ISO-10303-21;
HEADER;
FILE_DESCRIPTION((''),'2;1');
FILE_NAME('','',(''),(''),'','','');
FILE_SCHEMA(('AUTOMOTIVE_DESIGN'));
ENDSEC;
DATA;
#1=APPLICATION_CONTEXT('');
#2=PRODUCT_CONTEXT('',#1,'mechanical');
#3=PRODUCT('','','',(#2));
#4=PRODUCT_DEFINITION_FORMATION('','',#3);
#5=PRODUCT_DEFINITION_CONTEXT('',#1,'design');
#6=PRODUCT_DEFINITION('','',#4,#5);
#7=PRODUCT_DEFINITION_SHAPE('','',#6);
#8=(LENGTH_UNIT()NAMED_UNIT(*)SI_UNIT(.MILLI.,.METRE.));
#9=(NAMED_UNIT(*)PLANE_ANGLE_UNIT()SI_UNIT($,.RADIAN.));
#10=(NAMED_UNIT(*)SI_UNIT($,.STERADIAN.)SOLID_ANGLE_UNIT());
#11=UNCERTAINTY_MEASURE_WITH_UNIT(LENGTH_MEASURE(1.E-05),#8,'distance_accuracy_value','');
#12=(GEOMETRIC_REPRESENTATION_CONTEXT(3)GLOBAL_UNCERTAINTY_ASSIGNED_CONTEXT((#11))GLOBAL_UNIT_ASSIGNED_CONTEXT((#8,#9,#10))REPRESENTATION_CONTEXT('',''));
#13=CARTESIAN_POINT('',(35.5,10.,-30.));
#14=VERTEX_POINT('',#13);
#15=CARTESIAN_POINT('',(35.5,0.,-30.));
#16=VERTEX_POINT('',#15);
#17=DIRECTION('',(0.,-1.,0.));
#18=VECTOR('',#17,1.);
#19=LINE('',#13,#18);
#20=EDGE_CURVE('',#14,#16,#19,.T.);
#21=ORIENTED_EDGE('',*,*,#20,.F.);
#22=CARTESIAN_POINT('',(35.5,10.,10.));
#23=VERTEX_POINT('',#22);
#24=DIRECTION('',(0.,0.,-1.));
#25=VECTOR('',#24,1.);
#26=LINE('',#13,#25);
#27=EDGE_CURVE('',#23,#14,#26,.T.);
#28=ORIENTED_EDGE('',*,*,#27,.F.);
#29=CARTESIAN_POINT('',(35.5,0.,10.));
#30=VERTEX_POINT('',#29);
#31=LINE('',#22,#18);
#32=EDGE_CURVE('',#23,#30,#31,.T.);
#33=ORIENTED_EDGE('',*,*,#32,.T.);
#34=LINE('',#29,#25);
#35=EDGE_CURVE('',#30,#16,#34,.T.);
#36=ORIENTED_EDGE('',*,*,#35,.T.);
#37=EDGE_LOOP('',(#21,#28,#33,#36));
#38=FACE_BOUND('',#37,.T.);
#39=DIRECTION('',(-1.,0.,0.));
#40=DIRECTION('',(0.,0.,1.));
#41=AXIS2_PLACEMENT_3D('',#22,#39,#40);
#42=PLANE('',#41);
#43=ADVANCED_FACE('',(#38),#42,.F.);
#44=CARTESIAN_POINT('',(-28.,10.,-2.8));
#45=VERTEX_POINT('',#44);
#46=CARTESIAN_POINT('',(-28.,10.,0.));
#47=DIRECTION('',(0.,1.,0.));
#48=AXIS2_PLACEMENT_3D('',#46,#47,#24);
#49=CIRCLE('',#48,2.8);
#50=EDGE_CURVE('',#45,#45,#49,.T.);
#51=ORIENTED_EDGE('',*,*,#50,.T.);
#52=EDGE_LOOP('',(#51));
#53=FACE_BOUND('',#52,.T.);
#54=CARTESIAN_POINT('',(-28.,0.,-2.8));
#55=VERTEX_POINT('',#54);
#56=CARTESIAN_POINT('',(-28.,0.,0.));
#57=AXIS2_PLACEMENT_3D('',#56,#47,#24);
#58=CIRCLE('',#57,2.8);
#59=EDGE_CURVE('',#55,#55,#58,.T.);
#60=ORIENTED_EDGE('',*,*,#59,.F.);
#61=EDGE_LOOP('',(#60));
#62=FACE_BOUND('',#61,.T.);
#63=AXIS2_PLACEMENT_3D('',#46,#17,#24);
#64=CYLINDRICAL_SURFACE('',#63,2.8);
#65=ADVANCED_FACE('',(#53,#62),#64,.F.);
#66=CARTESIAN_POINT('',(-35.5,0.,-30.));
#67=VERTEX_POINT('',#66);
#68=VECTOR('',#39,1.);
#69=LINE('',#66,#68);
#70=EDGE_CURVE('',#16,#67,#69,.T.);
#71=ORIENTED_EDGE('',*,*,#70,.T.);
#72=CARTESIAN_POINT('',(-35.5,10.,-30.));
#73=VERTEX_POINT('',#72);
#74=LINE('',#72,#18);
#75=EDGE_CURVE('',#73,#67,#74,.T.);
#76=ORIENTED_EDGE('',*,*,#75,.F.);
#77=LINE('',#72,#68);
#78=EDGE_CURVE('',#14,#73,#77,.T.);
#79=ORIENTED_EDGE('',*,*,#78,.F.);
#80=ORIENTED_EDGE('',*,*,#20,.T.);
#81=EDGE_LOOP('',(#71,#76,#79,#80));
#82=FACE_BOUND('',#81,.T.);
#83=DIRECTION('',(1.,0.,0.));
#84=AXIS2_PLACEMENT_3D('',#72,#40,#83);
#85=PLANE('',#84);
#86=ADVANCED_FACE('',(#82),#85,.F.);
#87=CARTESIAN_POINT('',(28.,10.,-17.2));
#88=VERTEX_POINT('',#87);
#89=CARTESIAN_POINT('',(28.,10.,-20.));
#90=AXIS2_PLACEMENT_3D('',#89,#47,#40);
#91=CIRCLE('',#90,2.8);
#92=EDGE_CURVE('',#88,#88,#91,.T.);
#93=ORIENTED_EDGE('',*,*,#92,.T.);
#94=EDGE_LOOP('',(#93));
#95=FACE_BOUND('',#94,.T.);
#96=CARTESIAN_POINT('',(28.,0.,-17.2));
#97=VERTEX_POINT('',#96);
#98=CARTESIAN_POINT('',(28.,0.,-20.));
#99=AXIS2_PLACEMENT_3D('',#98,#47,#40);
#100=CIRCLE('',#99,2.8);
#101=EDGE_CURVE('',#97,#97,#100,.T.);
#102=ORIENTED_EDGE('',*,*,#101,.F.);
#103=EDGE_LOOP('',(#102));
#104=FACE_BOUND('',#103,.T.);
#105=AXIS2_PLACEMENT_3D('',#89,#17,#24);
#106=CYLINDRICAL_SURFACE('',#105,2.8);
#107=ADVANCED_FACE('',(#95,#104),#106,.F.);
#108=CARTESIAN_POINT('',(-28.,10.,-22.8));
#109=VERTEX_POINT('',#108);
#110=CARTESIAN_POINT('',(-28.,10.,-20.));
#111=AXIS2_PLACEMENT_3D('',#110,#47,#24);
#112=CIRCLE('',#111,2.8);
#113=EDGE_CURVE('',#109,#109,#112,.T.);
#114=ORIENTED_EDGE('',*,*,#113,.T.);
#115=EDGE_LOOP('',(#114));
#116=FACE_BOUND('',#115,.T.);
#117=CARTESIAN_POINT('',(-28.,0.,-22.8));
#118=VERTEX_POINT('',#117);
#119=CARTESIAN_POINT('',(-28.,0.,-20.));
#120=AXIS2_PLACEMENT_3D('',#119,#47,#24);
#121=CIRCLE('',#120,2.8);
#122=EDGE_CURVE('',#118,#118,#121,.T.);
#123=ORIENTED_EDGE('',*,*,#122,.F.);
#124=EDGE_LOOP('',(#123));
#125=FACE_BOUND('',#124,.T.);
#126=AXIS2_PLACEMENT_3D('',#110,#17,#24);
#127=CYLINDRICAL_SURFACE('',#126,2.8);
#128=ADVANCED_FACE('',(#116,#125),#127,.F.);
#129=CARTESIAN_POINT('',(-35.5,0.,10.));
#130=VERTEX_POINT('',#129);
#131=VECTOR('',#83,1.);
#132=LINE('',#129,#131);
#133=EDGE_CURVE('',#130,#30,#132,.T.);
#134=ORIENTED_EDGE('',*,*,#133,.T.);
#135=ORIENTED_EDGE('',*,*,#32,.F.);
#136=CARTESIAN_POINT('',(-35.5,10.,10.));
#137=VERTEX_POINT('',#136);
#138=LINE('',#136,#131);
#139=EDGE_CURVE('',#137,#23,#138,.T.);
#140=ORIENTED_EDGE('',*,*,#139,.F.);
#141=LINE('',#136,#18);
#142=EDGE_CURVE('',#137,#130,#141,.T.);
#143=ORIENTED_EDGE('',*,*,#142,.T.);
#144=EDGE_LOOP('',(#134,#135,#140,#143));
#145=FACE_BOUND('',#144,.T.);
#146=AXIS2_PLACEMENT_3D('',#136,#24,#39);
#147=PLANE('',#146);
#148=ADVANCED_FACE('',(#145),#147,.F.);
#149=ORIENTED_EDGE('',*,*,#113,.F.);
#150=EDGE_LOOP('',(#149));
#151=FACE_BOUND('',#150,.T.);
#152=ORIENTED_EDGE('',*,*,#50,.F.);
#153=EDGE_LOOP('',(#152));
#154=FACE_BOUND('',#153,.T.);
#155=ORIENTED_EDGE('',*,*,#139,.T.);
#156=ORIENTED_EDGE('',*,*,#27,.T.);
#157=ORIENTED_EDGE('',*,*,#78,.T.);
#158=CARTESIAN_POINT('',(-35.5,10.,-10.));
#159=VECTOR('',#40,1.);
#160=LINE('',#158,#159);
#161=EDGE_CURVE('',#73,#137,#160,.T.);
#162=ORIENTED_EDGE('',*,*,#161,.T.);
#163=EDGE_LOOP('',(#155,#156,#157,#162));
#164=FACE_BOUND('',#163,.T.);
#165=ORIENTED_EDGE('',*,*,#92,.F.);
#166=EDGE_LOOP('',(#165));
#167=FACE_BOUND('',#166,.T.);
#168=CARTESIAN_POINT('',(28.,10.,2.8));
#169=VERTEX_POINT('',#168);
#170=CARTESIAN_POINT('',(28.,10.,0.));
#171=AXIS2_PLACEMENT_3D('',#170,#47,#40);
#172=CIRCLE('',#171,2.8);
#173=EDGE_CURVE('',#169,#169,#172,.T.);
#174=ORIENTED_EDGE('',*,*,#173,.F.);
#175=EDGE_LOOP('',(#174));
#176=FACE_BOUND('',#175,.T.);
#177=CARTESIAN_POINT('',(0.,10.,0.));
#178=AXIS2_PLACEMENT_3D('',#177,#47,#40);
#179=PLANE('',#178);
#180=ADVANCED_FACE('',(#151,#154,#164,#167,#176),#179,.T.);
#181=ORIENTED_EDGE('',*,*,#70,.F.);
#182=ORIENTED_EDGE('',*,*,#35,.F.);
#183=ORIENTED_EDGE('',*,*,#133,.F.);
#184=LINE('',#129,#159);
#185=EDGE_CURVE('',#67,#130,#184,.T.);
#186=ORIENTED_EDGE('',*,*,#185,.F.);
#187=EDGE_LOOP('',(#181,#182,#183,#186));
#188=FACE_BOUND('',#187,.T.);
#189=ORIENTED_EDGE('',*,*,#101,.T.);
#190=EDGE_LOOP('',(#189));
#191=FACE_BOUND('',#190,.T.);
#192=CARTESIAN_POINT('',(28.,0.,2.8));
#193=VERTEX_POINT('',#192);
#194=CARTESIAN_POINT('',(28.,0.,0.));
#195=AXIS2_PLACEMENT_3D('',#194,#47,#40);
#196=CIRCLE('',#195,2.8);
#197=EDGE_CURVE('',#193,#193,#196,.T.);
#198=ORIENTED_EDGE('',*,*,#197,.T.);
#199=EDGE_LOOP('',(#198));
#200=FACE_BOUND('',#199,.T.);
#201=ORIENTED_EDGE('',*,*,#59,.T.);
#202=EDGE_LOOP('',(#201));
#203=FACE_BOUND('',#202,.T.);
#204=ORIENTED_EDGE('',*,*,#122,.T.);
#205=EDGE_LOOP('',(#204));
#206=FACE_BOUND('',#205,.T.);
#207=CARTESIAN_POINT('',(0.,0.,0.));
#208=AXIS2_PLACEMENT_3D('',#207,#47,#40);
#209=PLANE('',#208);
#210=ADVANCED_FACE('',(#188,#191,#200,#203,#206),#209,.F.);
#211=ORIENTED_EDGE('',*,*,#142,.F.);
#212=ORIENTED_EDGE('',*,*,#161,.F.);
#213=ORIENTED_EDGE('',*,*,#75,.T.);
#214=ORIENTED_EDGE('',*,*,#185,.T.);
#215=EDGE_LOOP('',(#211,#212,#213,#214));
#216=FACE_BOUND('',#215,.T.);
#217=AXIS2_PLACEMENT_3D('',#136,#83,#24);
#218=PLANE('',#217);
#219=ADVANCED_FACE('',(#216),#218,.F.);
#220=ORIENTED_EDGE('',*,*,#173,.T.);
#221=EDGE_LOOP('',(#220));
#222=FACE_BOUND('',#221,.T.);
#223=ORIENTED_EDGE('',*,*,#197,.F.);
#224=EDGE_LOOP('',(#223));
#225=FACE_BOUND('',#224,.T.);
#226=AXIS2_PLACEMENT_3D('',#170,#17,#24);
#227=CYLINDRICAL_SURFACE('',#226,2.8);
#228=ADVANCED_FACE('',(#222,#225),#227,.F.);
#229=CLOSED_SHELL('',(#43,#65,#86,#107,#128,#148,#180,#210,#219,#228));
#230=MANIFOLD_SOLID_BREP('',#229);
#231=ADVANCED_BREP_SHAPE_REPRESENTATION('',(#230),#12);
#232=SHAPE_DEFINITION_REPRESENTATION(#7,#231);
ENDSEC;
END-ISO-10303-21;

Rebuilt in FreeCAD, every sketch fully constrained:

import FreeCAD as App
import Part
import Sketcher
from FreeCAD import Vector


def add_polygon(sketch, points):
    """Adds a closed chain of lines whose ends are joined by coincident constraints."""
    first, n = sketch.GeometryCount, len(points)
    for a, b in zip(points, points[1:] + points[:1]):
        sketch.addGeometry(Part.LineSegment(App.Vector(*a, 0), App.Vector(*b, 0)), False)
    for i in range(n):
        sketch.addConstraint(Sketcher.Constraint("Coincident", first + i, 2, first + (i + 1) % n, 1))

doc = App.newDocument("Part")
params = doc.addObject("Spreadsheet::Sheet", "Params")
for row, (alias, value) in enumerate([
    ("sketch1_diameter", "5.6 mm"),
    ("sketch1_width", "71 mm"),
    ("sketch1_height", "40 mm"),
    ("pad1_length", "10 mm"),
], start=1):
    params.set(f"A{row}", alias)
    params.set(f"B{row}", "=" + value)
    params.setAlias(f"B{row}", alias)

body = doc.addObject("PartDesign::Body", "Body")

# Sketch on XZ plane
sketch1 = body.newObject("Sketcher::SketchObject", "Sketch")
sketch1.AttachmentSupport = (doc.getObject("XZ_Plane"), [""])
sketch1.MapMode = "FlatFace"
add_polygon(sketch1, [(-35.5, -30), (-35.5, 10), (35.5, 10), (35.5, -30)])  # lines 0-3
sketch1.addGeometry(Part.Circle(Vector(28, 0, 0), Vector(0, 0, 1), 2.8), False)  # 4
sketch1.addGeometry(Part.Circle(Vector(-28, 0, 0), Vector(0, 0, 1), 2.8), False)  # 5
sketch1.addGeometry(Part.Circle(Vector(28, -20, 0), Vector(0, 0, 1), 2.8), False)  # 6
sketch1.addGeometry(Part.Circle(Vector(-28, -20, 0), Vector(0, 0, 1), 2.8), False)  # 7
sketch1.addConstraint(Sketcher.Constraint("Vertical", 0))
sketch1.addConstraint(Sketcher.Constraint("Horizontal", 1))
sketch1.addConstraint(Sketcher.Constraint("Vertical", 2))
sketch1.addConstraint(Sketcher.Constraint("Horizontal", 3))
sketch1.addConstraint(Sketcher.Constraint("Equal", 4, 5))
sketch1.addConstraint(Sketcher.Constraint("Equal", 5, 6))
sketch1.addConstraint(Sketcher.Constraint("Equal", 6, 7))
sketch1.addConstraint(Sketcher.Constraint("Symmetric", 4, 3, 5, 3, -1, 1))
sketch1.addConstraint(Sketcher.Constraint("Symmetric", 6, 3, 7, 3, -2))
sketch1.addConstraint(Sketcher.Constraint("PointOnObject", 4, 3, -1))
sketch1.addConstraint(Sketcher.Constraint("Vertical", 4, 3, 6, 3))
sketch1.addConstraint(Sketcher.Constraint("Diameter", 4, 5.6))
sketch1.addConstraint(Sketcher.Constraint("DistanceX", 1, 1, 1, 2, 71.0))
sketch1.addConstraint(Sketcher.Constraint("DistanceY", 0, 1, 0, 2, 40.0))
sketch1.addConstraint(Sketcher.Constraint("DistanceX", -1, 1, 4, 3, 28.0))
sketch1.addConstraint(Sketcher.Constraint("DistanceY", 6, 3, -1, 1, 20.0))
sketch1.addConstraint(Sketcher.Constraint("DistanceY", -1, 1, 0, 2, 10.0))
sketch1.addConstraint(Sketcher.Constraint("DistanceX", 0, 2, -1, 1, 35.5))
sketch1.setExpression("Constraints[15]", "Params.sketch1_diameter")
sketch1.setExpression("Constraints[16]", "Params.sketch1_width")
sketch1.setExpression("Constraints[17]", "Params.sketch1_height")
pad1 = body.newObject("PartDesign::Pad", "Pad")
pad1.Profile = sketch1
pad1.setExpression("Length", "Params.pad1_length")
pad1.Reversed = True

doc.recompute()
